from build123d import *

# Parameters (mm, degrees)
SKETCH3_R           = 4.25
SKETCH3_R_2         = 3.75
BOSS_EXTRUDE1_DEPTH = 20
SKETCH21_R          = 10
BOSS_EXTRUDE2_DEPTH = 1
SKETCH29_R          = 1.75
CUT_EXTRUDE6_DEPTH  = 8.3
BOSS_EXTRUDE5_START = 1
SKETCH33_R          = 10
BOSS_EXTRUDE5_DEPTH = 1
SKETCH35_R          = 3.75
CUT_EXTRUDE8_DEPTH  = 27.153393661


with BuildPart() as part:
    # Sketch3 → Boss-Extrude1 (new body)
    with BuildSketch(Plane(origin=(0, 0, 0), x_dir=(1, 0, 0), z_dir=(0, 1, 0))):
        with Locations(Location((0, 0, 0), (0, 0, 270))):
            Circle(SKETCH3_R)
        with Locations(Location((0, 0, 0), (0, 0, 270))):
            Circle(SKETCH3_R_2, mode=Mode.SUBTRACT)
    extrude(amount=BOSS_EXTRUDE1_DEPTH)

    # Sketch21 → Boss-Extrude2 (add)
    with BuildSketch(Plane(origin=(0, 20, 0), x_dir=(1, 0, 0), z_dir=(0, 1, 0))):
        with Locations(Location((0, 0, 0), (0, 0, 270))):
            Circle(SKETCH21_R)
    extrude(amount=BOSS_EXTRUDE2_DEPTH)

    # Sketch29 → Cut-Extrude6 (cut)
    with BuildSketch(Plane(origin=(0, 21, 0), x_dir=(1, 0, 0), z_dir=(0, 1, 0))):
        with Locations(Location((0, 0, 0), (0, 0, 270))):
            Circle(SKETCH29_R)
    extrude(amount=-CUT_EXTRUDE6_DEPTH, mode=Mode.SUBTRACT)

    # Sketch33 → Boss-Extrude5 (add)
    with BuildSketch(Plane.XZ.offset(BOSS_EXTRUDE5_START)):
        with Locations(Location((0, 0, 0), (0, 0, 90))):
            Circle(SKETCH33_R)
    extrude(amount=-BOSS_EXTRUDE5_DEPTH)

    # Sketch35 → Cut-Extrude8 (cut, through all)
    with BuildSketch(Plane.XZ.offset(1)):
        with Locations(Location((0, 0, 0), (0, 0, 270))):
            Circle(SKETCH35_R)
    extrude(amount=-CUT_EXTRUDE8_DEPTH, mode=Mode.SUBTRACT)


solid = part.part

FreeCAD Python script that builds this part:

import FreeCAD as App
import Part
import Sketcher

V = App.Vector
Q = App.Units.Quantity

doc = App.newDocument("Part")
params = doc.addObject("Spreadsheet::Sheet", "Params")
for row, (alias, value) in enumerate([
    ("sketch1_diameter", "8.5 mm"),
    ("sketch1_diameter2", "7.5 mm"),
    ("pad1_length", "20 mm"),
    ("sketch2_diameter", "20 mm"),
    ("pad2_length", "1 mm"),
    ("sketch3_diameter", "3.5 mm"),
    ("pocket1_length", "8.3 mm"),
    ("sketch4_diameter", "20 mm"),
    ("pad3_length", "1 mm"),
    ("sketch5_diameter", "7.5 mm"),
], start=1):
    params.set(f"A{row}", alias)
    params.set(f"B{row}", "=" + value)
    params.setAlias(f"B{row}", alias)

body = doc.addObject("PartDesign::Body", "Body")

sketch1 = doc.addObject("Sketcher::SketchObject", "Sketch")
body.addObject(sketch1)
sketch1.AttachmentSupport = (doc.XZ_Plane, [""])
sketch1.MapMode = "FlatFace"
sketch1.addGeometry(Part.Circle(V(0, 0, 0), V(0, 0, 1), 4.2), False)
sketch1.addGeometry(Part.Circle(V(0, 0, 0), V(0, 0, 1), 3.8), False)
sketch1.addConstraint(Sketcher.Constraint("Coincident", 0, 3, -1, 1))
sketch1.addConstraint(Sketcher.Constraint("Coincident", 1, 3, -1, 1))
sketch1.addConstraint(Sketcher.Constraint("Diameter", 0, Q("8.5 mm")))
sketch1.addConstraint(Sketcher.Constraint("Diameter", 1, Q("7.5 mm")))
sketch1.setExpression("Constraints[2]", "Params.sketch1_diameter")
sketch1.setExpression("Constraints[3]", "Params.sketch1_diameter2")
pad1 = doc.addObject("PartDesign::Pad", "Pad")
body.addObject(pad1)
pad1.Profile = sketch1
pad1.setExpression("Length", "Params.pad1_length")
pad1.Reversed = True

sketch2 = doc.addObject("Sketcher::SketchObject", "Sketch001")
body.addObject(sketch2)
sketch2.AttachmentSupport = (doc.XZ_Plane, [""])
sketch2.MapMode = "FlatFace"
sketch2.AttachmentOffset = App.Placement(V(0, 0, -20), App.Rotation())
sketch2.addGeometry(Part.Circle(V(0, 0, 0), V(0, 0, 1), 10), False)
sketch2.addConstraint(Sketcher.Constraint("Coincident", 0, 3, -1, 1))
sketch2.addConstraint(Sketcher.Constraint("Diameter", 0, Q("20 mm")))
sketch2.setExpression("Constraints[1]", "Params.sketch2_diameter")
pad2 = doc.addObject("PartDesign::Pad", "Pad001")
body.addObject(pad2)
pad2.Profile = sketch2
pad2.setExpression("Length", "Params.pad2_length")
pad2.Reversed = True

sketch3 = doc.addObject("Sketcher::SketchObject", "Sketch002")
body.addObject(sketch3)
sketch3.AttachmentSupport = (doc.XZ_Plane, [""])
sketch3.MapMode = "FlatFace"
sketch3.AttachmentOffset = App.Placement(V(0, 0, -21), App.Rotation())
sketch3.addGeometry(Part.Circle(V(0, 0, 0), V(0, 0, 1), 1.8), False)
sketch3.addConstraint(Sketcher.Constraint("Coincident", 0, 3, -1, 1))
sketch3.addConstraint(Sketcher.Constraint("Diameter", 0, Q("3.5 mm")))
sketch3.setExpression("Constraints[1]", "Params.sketch3_diameter")
pocket1 = doc.addObject("PartDesign::Pocket", "Pocket")
body.addObject(pocket1)
pocket1.Profile = sketch3
pocket1.setExpression("Length", "Params.pocket1_length")
pocket1.Reversed = True

sketch4 = doc.addObject("Sketcher::SketchObject", "Sketch003")
body.addObject(sketch4)
sketch4.AttachmentSupport = (doc.XZ_Plane, [""])
sketch4.MapMode = "FlatFace"
sketch4.AttachmentOffset = App.Placement(V(0, 0, 1), App.Rotation())
sketch4.addGeometry(Part.Circle(V(0, 0, 0), V(0, 0, 1), 10), False)
sketch4.addConstraint(Sketcher.Constraint("Coincident", 0, 3, -1, 1))
sketch4.addConstraint(Sketcher.Constraint("Diameter", 0, Q("20 mm")))
sketch4.setExpression("Constraints[1]", "Params.sketch4_diameter")
pad3 = doc.addObject("PartDesign::Pad", "Pad002")
body.addObject(pad3)
pad3.Profile = sketch4
pad3.setExpression("Length", "Params.pad3_length")
pad3.Reversed = True

sketch5 = doc.addObject("Sketcher::SketchObject", "Sketch004")
body.addObject(sketch5)
sketch5.AttachmentSupport = (doc.XZ_Plane, [""])
sketch5.MapMode = "FlatFace"
sketch5.AttachmentOffset = App.Placement(V(0, 0, 1), App.Rotation())
sketch5.addGeometry(Part.Circle(V(0, 0, 0), V(0, 0, 1), 3.8), False)
sketch5.addConstraint(Sketcher.Constraint("Coincident", 0, 3, -1, 1))
sketch5.addConstraint(Sketcher.Constraint("Diameter", 0, Q("7.5 mm")))
sketch5.setExpression("Constraints[1]", "Params.sketch5_diameter")
pocket2 = doc.addObject("PartDesign::Pocket", "Pocket001")
body.addObject(pocket2)
pocket2.Profile = sketch5
pocket2.Type = "ThroughAll"

doc.recompute()
